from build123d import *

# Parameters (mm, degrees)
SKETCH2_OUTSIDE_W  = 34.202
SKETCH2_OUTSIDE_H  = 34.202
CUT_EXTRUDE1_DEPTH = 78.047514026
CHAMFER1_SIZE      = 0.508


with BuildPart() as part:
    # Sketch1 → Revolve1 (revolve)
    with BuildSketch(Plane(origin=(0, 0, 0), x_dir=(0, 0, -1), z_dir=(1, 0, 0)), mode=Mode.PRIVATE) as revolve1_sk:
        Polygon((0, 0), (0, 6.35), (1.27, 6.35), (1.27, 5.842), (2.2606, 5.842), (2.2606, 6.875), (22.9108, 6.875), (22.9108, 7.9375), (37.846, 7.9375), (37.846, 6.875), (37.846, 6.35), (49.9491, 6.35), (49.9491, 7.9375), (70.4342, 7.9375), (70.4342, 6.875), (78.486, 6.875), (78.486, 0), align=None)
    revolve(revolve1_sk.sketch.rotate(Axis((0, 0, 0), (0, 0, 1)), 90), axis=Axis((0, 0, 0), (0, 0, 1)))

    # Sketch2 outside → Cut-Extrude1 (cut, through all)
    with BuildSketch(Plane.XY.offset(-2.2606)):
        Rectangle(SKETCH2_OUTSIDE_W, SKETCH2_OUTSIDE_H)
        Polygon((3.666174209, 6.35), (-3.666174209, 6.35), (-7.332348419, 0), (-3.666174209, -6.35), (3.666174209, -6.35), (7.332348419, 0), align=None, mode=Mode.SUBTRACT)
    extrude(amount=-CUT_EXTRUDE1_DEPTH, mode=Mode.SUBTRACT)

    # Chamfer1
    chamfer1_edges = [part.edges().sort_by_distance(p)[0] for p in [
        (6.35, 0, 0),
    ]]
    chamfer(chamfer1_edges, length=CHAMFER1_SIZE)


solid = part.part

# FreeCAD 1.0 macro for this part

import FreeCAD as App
import Part
import Sketcher
Q = App.Units.Quantity


def edges_at(feature, points):
    """Names of the edges that pass closest to the given points."""
    edges = feature.Shape.Edges
    near = lambda p: min(range(len(edges)), key=lambda i: edges[i].distToShape(Part.Vertex(*p))[0])
    return sorted({f"Edge{near(p) + 1}" for p in points})

doc = App.newDocument("Part")
body = doc.addObject("PartDesign::Body", "Body")

sketch1 = body.newObject("Sketcher::SketchObject", "Sketch")
sketch1.AttachmentSupport = (doc.getObject("YZ_Plane"), [""])
sketch1.MapMode = "FlatFace"
sketch1.addGeometry(Part.LineSegment(App.Vector(6.35, 0, 0), App.Vector(0, 0, 0)), False)
sketch1.addGeometry(Part.LineSegment(App.Vector(0, 0, 0), App.Vector(0, -78.486, 0)), False)
sketch1.addGeometry(Part.LineSegment(App.Vector(0, -78.486, 0), App.Vector(6.875, -78.486, 0)), False)
sketch1.addGeometry(Part.LineSegment(App.Vector(6.875, -78.486, 0), App.Vector(6.875, -70.4342, 0)), False)
sketch1.addGeometry(Part.LineSegment(App.Vector(6.875, -70.4342, 0), App.Vector(7.9375, -70.4342, 0)), False)
sketch1.addGeometry(Part.LineSegment(App.Vector(7.9375, -70.4342, 0), App.Vector(7.9375, -49.9491, 0)), False)
sketch1.addGeometry(Part.LineSegment(App.Vector(7.9375, -49.9491, 0), App.Vector(6.35, -49.9491, 0)), False)
sketch1.addGeometry(Part.LineSegment(App.Vector(6.35, -49.9491, 0), App.Vector(6.35, -37.846, 0)), False)
sketch1.addGeometry(Part.LineSegment(App.Vector(6.35, -37.846, 0), App.Vector(7.9375, -37.846, 0)), False)
sketch1.addGeometry(Part.LineSegment(App.Vector(7.9375, -37.846, 0), App.Vector(7.9375, -22.9108, 0)), False)
sketch1.addGeometry(Part.LineSegment(App.Vector(7.9375, -22.9108, 0), App.Vector(6.875, -22.9108, 0)), False)
sketch1.addGeometry(Part.LineSegment(App.Vector(6.875, -22.9108, 0), App.Vector(6.875, -2.2606, 0)), False)
sketch1.addGeometry(Part.LineSegment(App.Vector(6.875, -2.2606, 0), App.Vector(5.842, -2.2606, 0)), False)
sketch1.addGeometry(Part.LineSegment(App.Vector(5.842, -2.2606, 0), App.Vector(5.842, -1.27, 0)), False)
sketch1.addGeometry(Part.LineSegment(App.Vector(5.842, -1.27, 0), App.Vector(6.35, -1.27, 0)), False)
sketch1.addGeometry(Part.LineSegment(App.Vector(6.35, -1.27, 0), App.Vector(6.35, 0, 0)), False)
sketch1.addConstraint(Sketcher.Constraint("Coincident", 0, 2, 1, 1))
sketch1.addConstraint(Sketcher.Constraint("Coincident", 1, 2, 2, 1))
sketch1.addConstraint(Sketcher.Constraint("Coincident", 2, 2, 3, 1))
sketch1.addConstraint(Sketcher.Constraint("Coincident", 3, 2, 4, 1))
sketch1.addConstraint(Sketcher.Constraint("Coincident", 4, 2, 5, 1))
sketch1.addConstraint(Sketcher.Constraint("Coincident", 5, 2, 6, 1))
sketch1.addConstraint(Sketcher.Constraint("Coincident", 6, 2, 7, 1))
sketch1.addConstraint(Sketcher.Constraint("Coincident", 7, 2, 8, 1))
sketch1.addConstraint(Sketcher.Constraint("Coincident", 8, 2, 9, 1))
sketch1.addConstraint(Sketcher.Constraint("Coincident", 9, 2, 10, 1))
sketch1.addConstraint(Sketcher.Constraint("Coincident", 10, 2, 11, 1))
sketch1.addConstraint(Sketcher.Constraint("Coincident", 11, 2, 12, 1))
sketch1.addConstraint(Sketcher.Constraint("Coincident", 12, 2, 13, 1))
sketch1.addConstraint(Sketcher.Constraint("Coincident", 13, 2, 14, 1))
sketch1.addConstraint(Sketcher.Constraint("Coincident", 14, 2, 15, 1))
sketch1.addConstraint(Sketcher.Constraint("Coincident", 15, 2, 0, 1))
sketch1.addConstraint(Sketcher.Constraint("Horizontal", 0))
sketch1.addConstraint(Sketcher.Constraint("Vertical", 1))
sketch1.addConstraint(Sketcher.Constraint("Horizontal", 2))
sketch1.addConstraint(Sketcher.Constraint("Vertical", 3))
sketch1.addConstraint(Sketcher.Constraint("Horizontal", 4))
sketch1.addConstraint(Sketcher.Constraint("Vertical", 5))
sketch1.addConstraint(Sketcher.Constraint("Horizontal", 6))
sketch1.addConstraint(Sketcher.Constraint("Vertical", 7))
sketch1.addConstraint(Sketcher.Constraint("Horizontal", 8))
sketch1.addConstraint(Sketcher.Constraint("Vertical", 9))
sketch1.addConstraint(Sketcher.Constraint("Horizontal", 10))
sketch1.addConstraint(Sketcher.Constraint("Vertical", 11))
sketch1.addConstraint(Sketcher.Constraint("Horizontal", 12))
sketch1.addConstraint(Sketcher.Constraint("Vertical", 13))
sketch1.addConstraint(Sketcher.Constraint("Horizontal", 14))
sketch1.addConstraint(Sketcher.Constraint("Vertical", 15))
sketch1.addConstraint(Sketcher.Constraint("Coincident", 0, 2, -1, 1))
sketch1.addConstraint(Sketcher.Constraint("Vertical", 5, 2, 8, 2))
sketch1.addConstraint(Sketcher.Constraint("Vertical", 3, 2, 10, 2))
sketch1.addConstraint(Sketcher.Constraint("Vertical", 7, 2, 14, 2))
sketch1.addConstraint(Sketcher.Constraint("DistanceX", 0, 2, 0, 1, Q("0.25 in")))
sketch1.addConstraint(Sketcher.Constraint("DistanceX", 14, 1, 14, 2, Q("0.02 in")))
sketch1.addConstraint(Sketcher.Constraint("DistanceY", 1, 2, 1, 1, Q("3.09 in")))
sketch1.addConstraint(Sketcher.Constraint("DistanceY", 15, 1, 15, 2, Q("0.05 in")))
sketch1.addConstraint(Sketcher.Constraint("DistanceX", 6, 2, 6, 1, Q("0.0625 in")))
sketch1.addConstraint(Sketcher.Constraint("DistanceY", 3, 1, 3, 2, Q("0.317 in")))
sketch1.addConstraint(Sketcher.Constraint("DistanceY", 9, 1, 9, 2, Q("0.588 in")))
sketch1.addConstraint(Sketcher.Constraint("DistanceY", 11, 1, 11, 2, Q("0.813 in")))
sketch1.addConstraint(Sketcher.Constraint("DistanceY", 13, 1, 13, 2, Q("0.039 in")))
sketch1.addConstraint(Sketcher.Constraint("DistanceY", 5, 1, 5, 2, Q("0.8065 in")))
sketch1.addConstraint(Sketcher.Constraint("DistanceX", 2, 1, 2, 2, 6.875))
revolution = body.newObject("PartDesign::Revolution", "Revolution")
revolution.Profile = sketch1
revolution.ReferenceAxis = (sketch1, ["V_Axis"])
revolution.Angle = 360

sketch2 = body.newObject("Sketcher::SketchObject", "Sketch001")
sketch2.AttachmentSupport = (doc.getObject("XY_Plane"), [""])
sketch2.MapMode = "FlatFace"
sketch2.AttachmentOffset = App.Placement(App.Vector(0, 0, -0.089 * 25.4), App.Rotation())
sketch2.addGeometry(Part.LineSegment(App.Vector(-17.101, 17.101, 0), App.Vector(-17.101, -17.101, 0)), False)
sketch2.addGeometry(Part.LineSegment(App.Vector(-17.101, -17.101, 0), App.Vector(17.101, -17.101, 0)), False)
sketch2.addGeometry(Part.LineSegment(App.Vector(17.101, -17.101, 0), App.Vector(17.101, 17.101, 0)), False)
sketch2.addGeometry(Part.LineSegment(App.Vector(17.101, 17.101, 0), App.Vector(-17.101, 17.101, 0)), False)
sketch2.addGeometry(Part.LineSegment(App.Vector(-3.666174, 6.35, 0), App.Vector(3.666174, 6.35, 0)), False)
sketch2.addGeometry(Part.LineSegment(App.Vector(3.666174, 6.35, 0), App.Vector(7.332348, 0, 0)), False)
sketch2.addGeometry(Part.LineSegment(App.Vector(7.332348, 0, 0), App.Vector(3.666174, -6.35, 0)), False)
sketch2.addGeometry(Part.LineSegment(App.Vector(3.666174, -6.35, 0), App.Vector(-3.666174, -6.35, 0)), False)
sketch2.addGeometry(Part.LineSegment(App.Vector(-3.666174, -6.35, 0), App.Vector(-7.332348, 0, 0)), False)
sketch2.addGeometry(Part.LineSegment(App.Vector(-7.332348, 0, 0), App.Vector(-3.666174, 6.35, 0)), False)
sketch2.addConstraint(Sketcher.Constraint("Coincident", 0, 2, 1, 1))
sketch2.addConstraint(Sketcher.Constraint("Coincident", 1, 2, 2, 1))
sketch2.addConstraint(Sketcher.Constraint("Coincident", 2, 2, 3, 1))
sketch2.addConstraint(Sketcher.Constraint("Coincident", 3, 2, 0, 1))
sketch2.addConstraint(Sketcher.Constraint("Coincident", 4, 2, 5, 1))
sketch2.addConstraint(Sketcher.Constraint("Coincident", 5, 2, 6, 1))
sketch2.addConstraint(Sketcher.Constraint("Coincident", 6, 2, 7, 1))
sketch2.addConstraint(Sketcher.Constraint("Coincident", 7, 2, 8, 1))
sketch2.addConstraint(Sketcher.Constraint("Coincident", 8, 2, 9, 1))
sketch2.addConstraint(Sketcher.Constraint("Coincident", 9, 2, 4, 1))
sketch2.addConstraint(Sketcher.Constraint("Vertical", 0))
sketch2.addConstraint(Sketcher.Constraint("Horizontal", 1))
sketch2.addConstraint(Sketcher.Constraint("Vertical", 2))
sketch2.addConstraint(Sketcher.Constraint("Horizontal", 3))
sketch2.addConstraint(Sketcher.Constraint("Horizontal", 4))
sketch2.addConstraint(Sketcher.Constraint("Horizontal", 7))
sketch2.addConstraint(Sketcher.Constraint("Symmetric", 0, 2, 2, 2, -1, 1))
sketch2.addConstraint(Sketcher.Constraint("Symmetric", 4, 2, 7, 2, -1, 1))
sketch2.addConstraint(Sketcher.Constraint("Symmetric", 5, 2, 8, 2, -1, 1))
sketch2.addConstraint(Sketcher.Constraint("PointOnObject", 5, 2, -1))
sketch2.addConstraint(Sketcher.Constraint("Parallel", 6, 9))
sketch2.addConstraint(Sketcher.Constraint("Vertical", 4, 2, 6, 2))
sketch2.addConstraint(Sketcher.Constraint("Equal", 3, 0))
sketch2.addConstraint(Sketcher.Constraint("Angle", 5, Q("-60 deg")))
sketch2.addConstraint(Sketcher.Constraint("DistanceY", 6, 2, 4, 2, Q("0.5 in")))
sketch2.addConstraint(Sketcher.Constraint("DistanceX", 1, 1, 1, 2, 34.202))
sketch2.addConstraint(Sketcher.Constraint("DistanceX", 4, 1, 4, 2, 7.332348))
pocket1 = body.newObject("PartDesign::Pocket", "Pocket")
pocket1.Profile = sketch2
pocket1.Type = "ThroughAll"
doc.recompute()

chamfer = body.newObject("PartDesign::Chamfer", "Chamfer")
chamfer.Base = (pocket1, edges_at(pocket1, [(6.35, 0, 0)]))
chamfer.Size = Q("0.02 in")

doc.recompute()
